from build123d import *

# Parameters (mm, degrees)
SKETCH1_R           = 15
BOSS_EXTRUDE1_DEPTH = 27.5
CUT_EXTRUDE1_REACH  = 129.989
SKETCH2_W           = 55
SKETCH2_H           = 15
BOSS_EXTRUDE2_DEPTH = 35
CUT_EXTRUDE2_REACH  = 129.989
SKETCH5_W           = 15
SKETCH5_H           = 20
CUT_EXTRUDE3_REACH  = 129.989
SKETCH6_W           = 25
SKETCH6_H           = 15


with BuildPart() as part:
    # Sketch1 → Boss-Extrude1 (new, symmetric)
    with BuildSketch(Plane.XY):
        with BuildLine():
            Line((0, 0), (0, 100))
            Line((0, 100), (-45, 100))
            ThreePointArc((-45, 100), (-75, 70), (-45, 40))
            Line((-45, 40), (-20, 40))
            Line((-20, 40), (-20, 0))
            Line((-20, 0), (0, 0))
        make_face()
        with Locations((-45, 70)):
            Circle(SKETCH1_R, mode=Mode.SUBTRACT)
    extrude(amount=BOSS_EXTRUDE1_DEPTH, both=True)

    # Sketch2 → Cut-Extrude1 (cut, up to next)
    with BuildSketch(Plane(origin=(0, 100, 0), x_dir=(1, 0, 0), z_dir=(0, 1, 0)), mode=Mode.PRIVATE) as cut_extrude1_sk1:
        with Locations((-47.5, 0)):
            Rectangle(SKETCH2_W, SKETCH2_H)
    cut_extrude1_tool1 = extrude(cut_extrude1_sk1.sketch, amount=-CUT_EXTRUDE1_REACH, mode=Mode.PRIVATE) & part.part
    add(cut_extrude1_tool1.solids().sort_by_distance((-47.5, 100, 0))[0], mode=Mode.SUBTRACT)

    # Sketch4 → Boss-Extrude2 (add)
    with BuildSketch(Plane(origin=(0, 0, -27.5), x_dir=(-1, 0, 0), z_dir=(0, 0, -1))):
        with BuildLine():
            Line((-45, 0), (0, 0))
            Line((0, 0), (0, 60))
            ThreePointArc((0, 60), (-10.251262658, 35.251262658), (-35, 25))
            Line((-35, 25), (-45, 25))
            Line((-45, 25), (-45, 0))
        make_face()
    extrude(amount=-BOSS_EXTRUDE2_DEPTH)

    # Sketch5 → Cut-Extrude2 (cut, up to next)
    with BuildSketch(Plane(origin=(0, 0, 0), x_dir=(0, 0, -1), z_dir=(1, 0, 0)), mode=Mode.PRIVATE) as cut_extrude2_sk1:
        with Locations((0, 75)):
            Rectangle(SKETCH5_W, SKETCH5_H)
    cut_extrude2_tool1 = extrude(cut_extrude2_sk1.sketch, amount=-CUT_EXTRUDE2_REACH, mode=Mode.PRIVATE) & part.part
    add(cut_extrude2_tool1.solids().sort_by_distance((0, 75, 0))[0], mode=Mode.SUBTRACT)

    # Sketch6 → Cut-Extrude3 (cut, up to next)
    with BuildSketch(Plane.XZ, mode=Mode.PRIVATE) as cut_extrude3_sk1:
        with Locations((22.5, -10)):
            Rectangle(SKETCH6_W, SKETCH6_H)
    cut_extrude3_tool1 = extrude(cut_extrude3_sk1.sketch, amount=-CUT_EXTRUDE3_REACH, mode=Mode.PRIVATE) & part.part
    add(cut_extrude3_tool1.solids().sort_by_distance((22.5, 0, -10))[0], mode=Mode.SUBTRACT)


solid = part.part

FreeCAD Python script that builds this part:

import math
import FreeCAD as App
import Part
import Sketcher

V = App.Vector

doc = App.newDocument("Part")
body = doc.addObject("PartDesign::Body", "Body")

sketch1 = body.newObject("Sketcher::SketchObject", "Sketch")
sketch1.AttachmentSupport = (doc.getObject("XY_Plane"), [""])
sketch1.MapMode = "FlatFace"
sketch1.addGeometry(Part.LineSegment(V(0, 0, 0), V(0, 100, 0)), False)
sketch1.addGeometry(Part.LineSegment(V(0, 100, 0), V(-45, 100, 0)), False)
sketch1.addGeometry(Part.ArcOfCircle(Part.Circle(V(-45, 70, 0), V(0, 0, 1), 30), math.radians(90), math.radians(270)), False)
sketch1.addGeometry(Part.LineSegment(V(-45, 40, 0), V(-20, 40, 0)), False)
sketch1.addGeometry(Part.LineSegment(V(-20, 40, 0), V(-20, 0, 0)), False)
sketch1.addGeometry(Part.LineSegment(V(-20, 0, 0), V(0, 0, 0)), False)
sketch1.addGeometry(Part.Circle(V(-45, 70, 0), V(0, 0, 1), 15), False)
sketch1.addConstraint(Sketcher.Constraint("Coincident", 0, 2, 1, 1))
sketch1.addConstraint(Sketcher.Constraint("Tangent", 1, 2, 2, 1))
sketch1.addConstraint(Sketcher.Constraint("Tangent", 2, 2, 3, 1))
sketch1.addConstraint(Sketcher.Constraint("Coincident", 3, 2, 4, 1))
sketch1.addConstraint(Sketcher.Constraint("Coincident", 4, 2, 5, 1))
sketch1.addConstraint(Sketcher.Constraint("Coincident", 5, 2, 0, 1))
sketch1.addConstraint(Sketcher.Constraint("Vertical", 0))
sketch1.addConstraint(Sketcher.Constraint("Horizontal", 1))
sketch1.addConstraint(Sketcher.Constraint("Horizontal", 3))
sketch1.addConstraint(Sketcher.Constraint("Vertical", 4))
sketch1.addConstraint(Sketcher.Constraint("Horizontal", 5))
sketch1.addConstraint(Sketcher.Constraint("Coincident", 5, 2, -1, 1))
sketch1.addConstraint(Sketcher.Constraint("Coincident", 6, 3, 2, 3))
sketch1.addConstraint(Sketcher.Constraint("Diameter", 6, 30.0))
sketch1.addConstraint(Sketcher.Constraint("Radius", 2, 30.0))
sketch1.addConstraint(Sketcher.Constraint("DistanceX", 1, 2, 1, 1, 45.0))
sketch1.addConstraint(Sketcher.Constraint("DistanceX", 3, 1, 3, 2, 25.0))
sketch1.addConstraint(Sketcher.Constraint("DistanceY", 0, 1, 0, 2, 100.0))
pad1 = body.newObject("PartDesign::Pad", "Pad")
pad1.Profile = sketch1
pad1.Length = 55
pad1.Midplane = True

sketch2 = body.newObject("Sketcher::SketchObject", "Sketch001")
sketch2.AttachmentSupport = (doc.getObject("XZ_Plane"), [""])
sketch2.MapMode = "FlatFace"
sketch2.AttachmentOffset = App.Placement(V(0, 0, -100), App.Rotation())
sketch2.addGeometry(Part.LineSegment(V(-75, -7.5, 0), V(-75, 7.5, 0)), False)
sketch2.addGeometry(Part.LineSegment(V(-75, 7.5, 0), V(-20, 7.5, 0)), False)
sketch2.addGeometry(Part.LineSegment(V(-20, 7.5, 0), V(-20, -7.5, 0)), False)
sketch2.addGeometry(Part.LineSegment(V(-20, -7.5, 0), V(-75, -7.5, 0)), False)
sketch2.addConstraint(Sketcher.Constraint("Coincident", 0, 2, 1, 1))
sketch2.addConstraint(Sketcher.Constraint("Coincident", 1, 2, 2, 1))
sketch2.addConstraint(Sketcher.Constraint("Coincident", 2, 2, 3, 1))
sketch2.addConstraint(Sketcher.Constraint("Coincident", 3, 2, 0, 1))
sketch2.addConstraint(Sketcher.Constraint("Vertical", 0))
sketch2.addConstraint(Sketcher.Constraint("Horizontal", 1))
sketch2.addConstraint(Sketcher.Constraint("Vertical", 2))
sketch2.addConstraint(Sketcher.Constraint("Horizontal", 3))
sketch2.addConstraint(Sketcher.Constraint("DistanceX", 1, 1, 1, 2, 55.0))
sketch2.addConstraint(Sketcher.Constraint("DistanceY", 0, 1, 0, 2, 15.0))
sketch2.addConstraint(Sketcher.Constraint("DistanceX", 0, 2, -1, 1, 75.0))
sketch2.addConstraint(Sketcher.Constraint("DistanceY", -1, 1, 0, 2, 7.5))
pocket1 = body.newObject("PartDesign::Pocket", "Pocket")
pocket1.Profile = sketch2
pocket1.Length = 60
pocket1.Reversed = True

sketch3 = body.newObject("Sketcher::SketchObject", "Sketch002")
sketch3.AttachmentSupport = (doc.getObject("XY_Plane"), [""])
sketch3.MapMode = "FlatFace"
sketch3.AttachmentOffset = App.Placement(V(0, 0, -27.5), App.Rotation())
sketch3.addGeometry(Part.LineSegment(V(45, 0, 0), V(0, 0, 0)), False)
sketch3.addGeometry(Part.LineSegment(V(0, 0, 0), V(0, 60, 0)), False)
sketch3.addGeometry(Part.ArcOfCircle(Part.Circle(V(35, 60, 0), V(0, 0, 1), 35), math.radians(180), math.radians(270)), False)
sketch3.addGeometry(Part.LineSegment(V(35, 25, 0), V(45, 25, 0)), False)
sketch3.addGeometry(Part.LineSegment(V(45, 25, 0), V(45, 0, 0)), False)
sketch3.addConstraint(Sketcher.Constraint("Coincident", 0, 2, 1, 1))
sketch3.addConstraint(Sketcher.Constraint("Tangent", 1, 2, 2, 1))
sketch3.addConstraint(Sketcher.Constraint("Tangent", 2, 2, 3, 1))
sketch3.addConstraint(Sketcher.Constraint("Coincident", 3, 2, 4, 1))
sketch3.addConstraint(Sketcher.Constraint("Coincident", 4, 2, 0, 1))
sketch3.addConstraint(Sketcher.Constraint("Horizontal", 0))
sketch3.addConstraint(Sketcher.Constraint("Vertical", 1))
sketch3.addConstraint(Sketcher.Constraint("Horizontal", 3))
sketch3.addConstraint(Sketcher.Constraint("Vertical", 4))
sketch3.addConstraint(Sketcher.Constraint("Coincident", 0, 2, -1, 1))
sketch3.addConstraint(Sketcher.Constraint("Radius", 2, 35.0))
sketch3.addConstraint(Sketcher.Constraint("DistanceX", 0, 2, 0, 1, 45.0))
sketch3.addConstraint(Sketcher.Constraint("DistanceY", 1, 1, 1, 2, 60.0))
pad2 = body.newObject("PartDesign::Pad", "Pad001")
pad2.Profile = sketch3
pad2.Length = 35

sketch4 = body.newObject("Sketcher::SketchObject", "Sketch003")
sketch4.AttachmentSupport = (doc.getObject("YZ_Plane"), [""])
sketch4.MapMode = "FlatFace"
sketch4.addGeometry(Part.LineSegment(V(85, 7.5, 0), V(65, 7.5, 0)), False)
sketch4.addGeometry(Part.LineSegment(V(65, 7.5, 0), V(65, -7.5, 0)), False)
sketch4.addGeometry(Part.LineSegment(V(65, -7.5, 0), V(85, -7.5, 0)), False)
sketch4.addGeometry(Part.LineSegment(V(85, -7.5, 0), V(85, 7.5, 0)), False)
sketch4.addConstraint(Sketcher.Constraint("Coincident", 0, 2, 1, 1))
sketch4.addConstraint(Sketcher.Constraint("Coincident", 1, 2, 2, 1))
sketch4.addConstraint(Sketcher.Constraint("Coincident", 2, 2, 3, 1))
sketch4.addConstraint(Sketcher.Constraint("Coincident", 3, 2, 0, 1))
sketch4.addConstraint(Sketcher.Constraint("Horizontal", 0))
sketch4.addConstraint(Sketcher.Constraint("Vertical", 1))
sketch4.addConstraint(Sketcher.Constraint("Horizontal", 2))
sketch4.addConstraint(Sketcher.Constraint("Vertical", 3))
sketch4.addConstraint(Sketcher.Constraint("DistanceX", 0, 2, 0, 1, 20.0))
sketch4.addConstraint(Sketcher.Constraint("DistanceY", 1, 2, 1, 1, 15.0))
sketch4.addConstraint(Sketcher.Constraint("DistanceX", -1, 1, 0, 2, 65.0))
sketch4.addConstraint(Sketcher.Constraint("DistanceY", -1, 1, 0, 2, 7.5))
pocket2 = body.newObject("PartDesign::Pocket", "Pocket001")
pocket2.Profile = sketch4
pocket2.Type = "UpToFirst"

sketch5 = body.newObject("Sketcher::SketchObject", "Sketch004")
sketch5.AttachmentSupport = (doc.getObject("XZ_Plane"), [""])
sketch5.MapMode = "FlatFace"
sketch5.addGeometry(Part.LineSegment(V(10, -2.5, 0), V(10, -17.5, 0)), False)
sketch5.addGeometry(Part.LineSegment(V(10, -17.5, 0), V(35, -17.5, 0)), False)
sketch5.addGeometry(Part.LineSegment(V(35, -17.5, 0), V(35, -2.5, 0)), False)
sketch5.addGeometry(Part.LineSegment(V(35, -2.5, 0), V(10, -2.5, 0)), False)
sketch5.addConstraint(Sketcher.Constraint("Coincident", 0, 2, 1, 1))
sketch5.addConstraint(Sketcher.Constraint("Coincident", 1, 2, 2, 1))
sketch5.addConstraint(Sketcher.Constraint("Coincident", 2, 2, 3, 1))
sketch5.addConstraint(Sketcher.Constraint("Coincident", 3, 2, 0, 1))
sketch5.addConstraint(Sketcher.Constraint("Vertical", 0))
sketch5.addConstraint(Sketcher.Constraint("Horizontal", 1))
sketch5.addConstraint(Sketcher.Constraint("Vertical", 2))
sketch5.addConstraint(Sketcher.Constraint("Horizontal", 3))
sketch5.addConstraint(Sketcher.Constraint("DistanceX", 1, 1, 1, 2, 25.0))
sketch5.addConstraint(Sketcher.Constraint("DistanceY", 0, 2, 0, 1, 15.0))
sketch5.addConstraint(Sketcher.Constraint("DistanceX", -1, 1, 0, 2, 10.0))
sketch5.addConstraint(Sketcher.Constraint("DistanceY", 0, 2, -1, 1, 17.5))
pocket3 = body.newObject("PartDesign::Pocket", "Pocket002")
pocket3.Profile = sketch5
pocket3.Type = "UpToFirst"

doc.recompute()
